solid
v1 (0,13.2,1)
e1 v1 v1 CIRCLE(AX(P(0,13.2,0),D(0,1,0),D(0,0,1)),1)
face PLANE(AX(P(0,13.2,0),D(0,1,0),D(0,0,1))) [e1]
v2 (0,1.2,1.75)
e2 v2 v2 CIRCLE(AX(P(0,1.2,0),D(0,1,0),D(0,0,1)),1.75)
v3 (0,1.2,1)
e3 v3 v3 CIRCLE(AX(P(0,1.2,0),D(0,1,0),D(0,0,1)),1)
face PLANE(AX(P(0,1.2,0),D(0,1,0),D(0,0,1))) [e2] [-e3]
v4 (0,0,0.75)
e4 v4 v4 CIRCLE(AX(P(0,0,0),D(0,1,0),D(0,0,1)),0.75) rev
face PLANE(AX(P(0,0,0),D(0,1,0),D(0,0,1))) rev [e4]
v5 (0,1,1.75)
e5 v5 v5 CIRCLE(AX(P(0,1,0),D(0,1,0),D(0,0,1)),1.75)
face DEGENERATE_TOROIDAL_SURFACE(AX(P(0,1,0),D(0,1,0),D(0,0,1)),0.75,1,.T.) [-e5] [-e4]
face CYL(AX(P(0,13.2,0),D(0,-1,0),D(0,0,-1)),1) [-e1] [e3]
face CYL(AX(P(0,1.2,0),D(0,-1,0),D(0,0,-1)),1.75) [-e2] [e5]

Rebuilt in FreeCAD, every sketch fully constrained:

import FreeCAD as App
import Part
import Sketcher

V = App.Vector


def edges_at(feature, points):
    """Names of the edges that pass closest to the given points."""
    edges = feature.Shape.Edges
    near = lambda p: min(range(len(edges)), key=lambda i: edges[i].distToShape(Part.Vertex(*p))[0])
    return sorted({f"Edge{near(p) + 1}" for p in points})

doc = App.newDocument("Part")
params = doc.addObject("Spreadsheet::Sheet", "Params")
for row, (alias, value) in enumerate([
    ("sketch1_diameter", "3.5 mm"),
    ("pad1_length", "1.2 mm"),
    ("sketch2_diameter", "2 mm"),
    ("pad2_length", "12 mm"),
    ("fillet_radius", "1 mm"),
], start=1):
    params.set(f"A{row}", alias)
    params.set(f"B{row}", "=" + value)
    params.setAlias(f"B{row}", alias)

body = doc.addObject("PartDesign::Body", "Body")

# Sketch on XZ plane
sketch1 = doc.addObject("Sketcher::SketchObject", "Sketch")
body.addObject(sketch1)
sketch1.AttachmentSupport = (doc.XZ_Plane, [""])
sketch1.MapMode = "FlatFace"
sketch1.addGeometry(Part.Circle(V(0, 0, 0), V(0, 0, 1), 1.8), False)
sketch1.addConstraint([
    Sketcher.Constraint("Coincident", 0, 3, -1, 1),
    Sketcher.Constraint("Diameter", 0, 3.5),
])
sketch1.setExpression("Constraints[1]", "Params.sketch1_diameter")
pad1 = doc.addObject("PartDesign::Pad", "Pad")
body.addObject(pad1)
pad1.Profile = sketch1
pad1.setExpression("Length", "Params.pad1_length")
pad1.Reversed = True

# Sketch on XZ plane
sketch2 = doc.addObject("Sketcher::SketchObject", "Sketch001")
body.addObject(sketch2)
sketch2.AttachmentSupport = (doc.XZ_Plane, [""])
sketch2.MapMode = "FlatFace"
sketch2.AttachmentOffset = App.Placement(V(0, 0, -1.2), App.Rotation())
sketch2.addGeometry(Part.Circle(V(0, 0, 0), V(0, 0, 1), 1), False)
sketch2.addConstraint([
    Sketcher.Constraint("Coincident", 0, 3, -1, 1),
    Sketcher.Constraint("Diameter", 0, 2.0),
])
sketch2.setExpression("Constraints[1]", "Params.sketch2_diameter")
pad2 = doc.addObject("PartDesign::Pad", "Pad001")
body.addObject(pad2)
pad2.Profile = sketch2
pad2.setExpression("Length", "Params.pad2_length")
pad2.Reversed = True
doc.recompute()

fillet = doc.addObject("PartDesign::Fillet", "Fillet")
body.addObject(fillet)
fillet.Base = (pad2, edges_at(pad2, [(0, 0, -1.75)]))
fillet.setExpression("Radius", "Params.fillet_radius")

doc.recompute()
